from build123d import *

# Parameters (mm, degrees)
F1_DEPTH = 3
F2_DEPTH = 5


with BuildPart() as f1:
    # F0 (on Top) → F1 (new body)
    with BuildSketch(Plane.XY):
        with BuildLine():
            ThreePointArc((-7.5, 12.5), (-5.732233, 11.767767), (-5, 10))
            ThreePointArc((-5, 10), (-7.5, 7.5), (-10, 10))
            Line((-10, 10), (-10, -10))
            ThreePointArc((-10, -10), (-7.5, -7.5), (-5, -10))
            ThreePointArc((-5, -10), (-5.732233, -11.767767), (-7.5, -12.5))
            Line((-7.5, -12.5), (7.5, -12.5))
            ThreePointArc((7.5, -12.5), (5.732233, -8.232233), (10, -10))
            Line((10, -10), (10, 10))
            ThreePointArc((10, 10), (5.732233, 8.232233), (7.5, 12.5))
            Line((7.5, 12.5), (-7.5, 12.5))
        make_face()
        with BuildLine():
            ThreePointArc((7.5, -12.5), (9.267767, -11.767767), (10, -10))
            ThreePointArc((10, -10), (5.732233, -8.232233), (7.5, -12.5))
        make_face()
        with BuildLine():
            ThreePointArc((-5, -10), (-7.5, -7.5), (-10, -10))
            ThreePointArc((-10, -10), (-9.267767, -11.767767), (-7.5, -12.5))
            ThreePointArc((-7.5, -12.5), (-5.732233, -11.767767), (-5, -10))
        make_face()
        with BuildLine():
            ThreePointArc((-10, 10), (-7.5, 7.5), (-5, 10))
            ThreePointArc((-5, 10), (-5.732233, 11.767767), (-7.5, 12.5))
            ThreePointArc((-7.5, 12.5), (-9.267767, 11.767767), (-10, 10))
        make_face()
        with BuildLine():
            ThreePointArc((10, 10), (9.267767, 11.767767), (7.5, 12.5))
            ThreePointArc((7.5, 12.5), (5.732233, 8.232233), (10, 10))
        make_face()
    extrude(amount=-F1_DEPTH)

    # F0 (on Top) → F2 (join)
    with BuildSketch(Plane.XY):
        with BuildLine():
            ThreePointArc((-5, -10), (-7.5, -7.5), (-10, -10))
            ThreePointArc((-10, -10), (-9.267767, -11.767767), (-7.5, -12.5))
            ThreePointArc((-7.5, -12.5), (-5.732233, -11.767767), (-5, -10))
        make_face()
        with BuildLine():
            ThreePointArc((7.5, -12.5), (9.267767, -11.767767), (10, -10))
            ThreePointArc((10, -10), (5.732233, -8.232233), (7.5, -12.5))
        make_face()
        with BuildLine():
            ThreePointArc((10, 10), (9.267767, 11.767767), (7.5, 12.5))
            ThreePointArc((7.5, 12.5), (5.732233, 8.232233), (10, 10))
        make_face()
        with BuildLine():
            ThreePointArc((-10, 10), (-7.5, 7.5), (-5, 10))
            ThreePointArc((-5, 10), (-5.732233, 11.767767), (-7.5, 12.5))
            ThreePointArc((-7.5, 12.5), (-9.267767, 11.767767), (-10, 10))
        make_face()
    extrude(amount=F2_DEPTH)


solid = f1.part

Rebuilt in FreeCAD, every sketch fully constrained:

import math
import FreeCAD as App
import Part
import Sketcher

V = App.Vector
Q = App.Units.Quantity

doc = App.newDocument("Part")
body = doc.addObject("PartDesign::Body", "Body")

# Sketch on XY plane
sketch1 = doc.addObject("Sketcher::SketchObject", "Sketch")
body.addObject(sketch1)
sketch1.AttachmentSupport = (doc.XY_Plane, [""])
sketch1.MapMode = "FlatFace"
sketch1.addGeometry([
    Part.LineSegment(V(-10, 10, 0), V(-10, -10, 0)),  # 0
    Part.ArcOfCircle(Part.Circle(V(-7.5, -10, 0), V(0, 0, 1), 2.5), math.radians(180), math.radians(270)),  # 1
    Part.LineSegment(V(-7.5, -12.5, 0), V(7.5, -12.5, 0)),  # 2
    Part.ArcOfCircle(Part.Circle(V(7.5, -10, 0), V(0, 0, 1), 2.5), math.radians(-90), math.radians(0)),  # 3
    Part.LineSegment(V(10, -10, 0), V(10, 10, 0)),  # 4
    Part.ArcOfCircle(Part.Circle(V(7.5, 10, 0), V(0, 0, 1), 2.5), math.radians(0), math.radians(90)),  # 5
    Part.LineSegment(V(7.5, 12.5, 0), V(-7.5, 12.5, 0)),  # 6
    Part.ArcOfCircle(Part.Circle(V(-7.5, 10, 0), V(0, 0, 1), 2.5), math.radians(90), math.radians(180)),  # 7
], False)
sketch1.addConstraint([
    Sketcher.Constraint("Tangent", 0, 2, 1, 1),
    Sketcher.Constraint("Tangent", 1, 2, 2, 1),
    Sketcher.Constraint("Tangent", 2, 2, 3, 1),
    Sketcher.Constraint("Tangent", 3, 2, 4, 1),
    Sketcher.Constraint("Tangent", 4, 2, 5, 1),
    Sketcher.Constraint("Tangent", 5, 2, 6, 1),
    Sketcher.Constraint("Tangent", 6, 2, 7, 1),
    Sketcher.Constraint("Tangent", 7, 2, 0, 1),
    Sketcher.Constraint("Vertical", 0),
    Sketcher.Constraint("Horizontal", 2),
    Sketcher.Constraint("Vertical", 4),
    Sketcher.Constraint("Horizontal", 6),
    Sketcher.Constraint("Equal", 1, 3),
    Sketcher.Constraint("Equal", 3, 5),
    Sketcher.Constraint("Equal", 5, 7),
    Sketcher.Constraint("Symmetric", 1, 3, 5, 3, -1, 1),
    Sketcher.Constraint("Radius", 1, Q("2.5 mm")),
    Sketcher.Constraint("DistanceX", 2, 1, 2, 2, Q("15 mm")),
    Sketcher.Constraint("DistanceY", 0, 2, 0, 1, Q("20 mm")),
])
pad1 = doc.addObject("PartDesign::Pad", "Pad")
body.addObject(pad1)
pad1.Profile = sketch1
pad1.Length = 3
pad1.Reversed = True

# Sketch on XY plane
sketch2 = doc.addObject("Sketcher::SketchObject", "Sketch001")
body.addObject(sketch2)
sketch2.AttachmentSupport = (doc.XY_Plane, [""])
sketch2.MapMode = "FlatFace"
sketch2.addGeometry([
    Part.ArcOfCircle(Part.Circle(V(-7.5, -10, 0), V(0, 0, 1), 2.5), math.radians(0), math.radians(180)),  # 0
    Part.ArcOfCircle(Part.Circle(V(-7.5, -10, 0), V(0, 0, 1), 2.5), math.radians(180), math.radians(270)),  # 1
    Part.ArcOfCircle(Part.Circle(V(-7.5, -10, 0), V(0, 0, 1), 2.5), math.radians(-90), math.radians(0)),  # 2
    Part.ArcOfCircle(Part.Circle(V(7.5, -10, 0), V(0, 0, 1), 2.5), math.radians(-90), math.radians(0)),  # 3
    Part.ArcOfCircle(Part.Circle(V(7.5, -10, 0), V(0, 0, 1), 2.5), math.radians(0), math.radians(270)),  # 4
    Part.ArcOfCircle(Part.Circle(V(7.5, 10, 0), V(0, 0, 1), 2.5), math.radians(0), math.radians(90)),  # 5
    Part.ArcOfCircle(Part.Circle(V(7.5, 10, 0), V(0, 0, 1), 2.5), math.radians(90), math.radians(360)),  # 6
    Part.ArcOfCircle(Part.Circle(V(-7.5, 10, 0), V(0, 0, 1), 2.5), math.radians(180), math.radians(360)),  # 7
    Part.ArcOfCircle(Part.Circle(V(-7.5, 10, 0), V(0, 0, 1), 2.5), math.radians(0), math.radians(90)),  # 8
    Part.ArcOfCircle(Part.Circle(V(-7.5, 10, 0), V(0, 0, 1), 2.5), math.radians(90), math.radians(180)),  # 9
], False)
sketch2.addConstraint([
    Sketcher.Constraint("Tangent", 0, 2, 1, 1),
    Sketcher.Constraint("Tangent", 1, 2, 2, 1),
    Sketcher.Constraint("Tangent", 2, 2, 0, 1),
    Sketcher.Constraint("Tangent", 3, 1, 4, 2),
    Sketcher.Constraint("Coincident", 4, 1, 3, 2),
    Sketcher.Constraint("Tangent", 5, 1, 6, 2),
    Sketcher.Constraint("Coincident", 6, 1, 5, 2),
    Sketcher.Constraint("Tangent", 7, 2, 8, 1),
    Sketcher.Constraint("Tangent", 8, 2, 9, 1),
    Sketcher.Constraint("Tangent", 9, 2, 7, 1),
    Sketcher.Constraint("Equal", 2, 3),
    Sketcher.Constraint("Equal", 4, 5),
    Sketcher.Constraint("Equal", 6, 7),
    Sketcher.Constraint("Symmetric", 0, 3, 5, 3, -1, 1),
    Sketcher.Constraint("Symmetric", 3, 3, 7, 3, -1, 1),
    Sketcher.Constraint("Symmetric", 0, 3, 3, 3, -2),
    Sketcher.Constraint("Horizontal", 4, 3, 0, 2),
    Sketcher.Constraint("Horizontal", 0, 2, 2, 2),
    Sketcher.Constraint("Horizontal", 2, 2, 4, 1),
    Sketcher.Constraint("Horizontal", 9, 3, 5, 1),
    Sketcher.Constraint("Horizontal", 5, 1, 7, 2),
    Sketcher.Constraint("Horizontal", 7, 2, 9, 2),
    Sketcher.Constraint("Vertical", 9, 3, 1, 2),
    Sketcher.Constraint("Vertical", 6, 3, 3, 1),
    Sketcher.Constraint("Vertical", 3, 1, 6, 1),
    Sketcher.Constraint("Vertical", 1, 2, 8, 2),
    Sketcher.Constraint("Radius", 0, Q("2.5 mm")),
    Sketcher.Constraint("DistanceY", 0, 3, -1, 1, Q("10 mm")),
    Sketcher.Constraint("DistanceX", 0, 2, -1, 1, Q("10 mm")),
])
pad2 = doc.addObject("PartDesign::Pad", "Pad001")
body.addObject(pad2)
pad2.Profile = sketch2
pad2.Length = 5

doc.recompute()
